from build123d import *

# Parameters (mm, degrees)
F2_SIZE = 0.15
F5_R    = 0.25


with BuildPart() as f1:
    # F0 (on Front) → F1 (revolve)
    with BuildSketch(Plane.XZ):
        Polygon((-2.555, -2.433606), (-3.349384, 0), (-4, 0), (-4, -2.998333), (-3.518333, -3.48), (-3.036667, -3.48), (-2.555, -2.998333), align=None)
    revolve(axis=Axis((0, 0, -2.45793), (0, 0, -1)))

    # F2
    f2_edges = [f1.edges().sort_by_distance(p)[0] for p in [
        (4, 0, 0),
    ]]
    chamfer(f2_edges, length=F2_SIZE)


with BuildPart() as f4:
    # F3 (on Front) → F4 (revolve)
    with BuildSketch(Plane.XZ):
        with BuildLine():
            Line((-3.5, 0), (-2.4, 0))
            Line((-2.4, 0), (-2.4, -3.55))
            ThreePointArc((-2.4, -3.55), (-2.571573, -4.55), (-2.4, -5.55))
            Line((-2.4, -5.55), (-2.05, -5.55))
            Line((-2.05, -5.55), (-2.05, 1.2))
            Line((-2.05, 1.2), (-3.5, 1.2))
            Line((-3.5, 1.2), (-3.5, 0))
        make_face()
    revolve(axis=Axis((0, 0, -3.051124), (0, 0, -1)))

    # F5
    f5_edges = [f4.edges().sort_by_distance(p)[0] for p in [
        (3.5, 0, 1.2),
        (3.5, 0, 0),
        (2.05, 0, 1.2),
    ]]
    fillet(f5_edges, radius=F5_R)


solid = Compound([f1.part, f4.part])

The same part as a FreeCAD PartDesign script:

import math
import FreeCAD as App
import Part
import Sketcher
from FreeCAD import Vector


def edges_at(feature, points):
    """Names of the edges that pass closest to the given points."""
    edges = feature.Shape.Edges
    near = lambda p: min(range(len(edges)), key=lambda i: edges[i].distToShape(Part.Vertex(*p))[0])
    return sorted({f"Edge{near(p) + 1}" for p in points})


def add_polygon(sketch, points):
    """Adds a closed chain of lines whose ends are joined by coincident constraints."""
    first, n = sketch.GeometryCount, len(points)
    for a, b in zip(points, points[1:] + points[:1]):
        sketch.addGeometry(Part.LineSegment(App.Vector(*a, 0), App.Vector(*b, 0)), False)
    for i in range(n):
        sketch.addConstraint(Sketcher.Constraint("Coincident", first + i, 2, first + (i + 1) % n, 1))

doc = App.newDocument("Part")
body = doc.addObject("PartDesign::Body", "Body")

sketch1 = body.newObject("Sketcher::SketchObject", "Sketch")
sketch1.AttachmentSupport = (doc.getObject("XZ_Plane"), [""])
sketch1.MapMode = "FlatFace"
add_polygon(sketch1, [(-2.555, -2.433606), (-3.349384, 0), (-4, 0), (-4, -2.998333), (-3.518333, -3.48), (-3.036667, -3.48), (-2.555, -2.998333)])
sketch1.addConstraint(Sketcher.Constraint("Horizontal", 1))
sketch1.addConstraint(Sketcher.Constraint("Vertical", 2))
sketch1.addConstraint(Sketcher.Constraint("Horizontal", 4))
sketch1.addConstraint(Sketcher.Constraint("Vertical", 6))
sketch1.addConstraint(Sketcher.Constraint("PointOnObject", 0, 2, -1))
sketch1.addConstraint(Sketcher.Constraint("Perpendicular", 3, 5))
sketch1.addConstraint(Sketcher.Constraint("Horizontal", 2, 2, 5, 2))
sketch1.addConstraint(Sketcher.Constraint("Equal", 3, 5))
sketch1.addConstraint(Sketcher.Constraint("DistanceX", 1, 2, -1, 1, 4.0))
sketch1.addConstraint(Sketcher.Constraint("DistanceY", 3, 2, -1, 1, 3.48))
sketch1.addConstraint(Sketcher.Constraint("DistanceX", 5, 2, -1, 1, 2.555))
sketch1.addConstraint(Sketcher.Constraint("Distance", 3, 0.68118))
sketch1.addConstraint(Sketcher.Constraint("DistanceX", 1, 2, 1, 1, 0.650616))
sketch1.addConstraint(Sketcher.Constraint("DistanceY", 6, 1, 6, 2, 0.564727))
revolution = body.newObject("PartDesign::Revolution", "Revolution")
revolution.Profile = sketch1
revolution.ReferenceAxis = (sketch1, ["V_Axis"])
revolution.Angle = 360
doc.recompute()

chamfer = body.newObject("PartDesign::Chamfer", "Chamfer")
chamfer.Base = (revolution, edges_at(revolution, [(4, 0, 0)]))
chamfer.Size = 0.15
body2 = doc.addObject("PartDesign::Body", "Body001")

sketch2 = body2.newObject("Sketcher::SketchObject", "Sketch001")
sketch2.AttachmentSupport = (doc.getObject("XZ_Plane001"), [""])
sketch2.MapMode = "FlatFace"
sketch2.addGeometry(Part.LineSegment(Vector(-3.5, 0, 0), Vector(-2.4, 0, 0)), False)
sketch2.addGeometry(Part.LineSegment(Vector(-2.4, 0, 0), Vector(-2.4, -3.55, 0)), False)
sketch2.addGeometry(Part.ArcOfCircle(Part.Circle(Vector(0.428425, -4.55, 0), Vector(0, 0, 1), 2.999998), math.radians(160.528765), math.radians(199.471235)), False)
sketch2.addGeometry(Part.LineSegment(Vector(-2.4, -5.55, 0), Vector(-2.05, -5.55, 0)), False)
sketch2.addGeometry(Part.LineSegment(Vector(-2.05, -5.55, 0), Vector(-2.05, 1.2, 0)), False)
sketch2.addGeometry(Part.LineSegment(Vector(-2.05, 1.2, 0), Vector(-3.5, 1.2, 0)), False)
sketch2.addGeometry(Part.LineSegment(Vector(-3.5, 1.2, 0), Vector(-3.5, 0, 0)), False)
sketch2.addConstraint(Sketcher.Constraint("Coincident", 0, 2, 1, 1))
sketch2.addConstraint(Sketcher.Constraint("Coincident", 1, 2, 2, 1))
sketch2.addConstraint(Sketcher.Constraint("Coincident", 2, 2, 3, 1))
sketch2.addConstraint(Sketcher.Constraint("Coincident", 3, 2, 4, 1))
sketch2.addConstraint(Sketcher.Constraint("Coincident", 4, 2, 5, 1))
sketch2.addConstraint(Sketcher.Constraint("Coincident", 5, 2, 6, 1))
sketch2.addConstraint(Sketcher.Constraint("Coincident", 6, 2, 0, 1))
sketch2.addConstraint(Sketcher.Constraint("Horizontal", 0))
sketch2.addConstraint(Sketcher.Constraint("Vertical", 1))
sketch2.addConstraint(Sketcher.Constraint("Horizontal", 3))
sketch2.addConstraint(Sketcher.Constraint("Vertical", 4))
sketch2.addConstraint(Sketcher.Constraint("Horizontal", 5))
sketch2.addConstraint(Sketcher.Constraint("Vertical", 6))
sketch2.addConstraint(Sketcher.Constraint("PointOnObject", 0, 2, -1))
sketch2.addConstraint(Sketcher.Constraint("Vertical", 1, 2, 2, 2))
sketch2.addConstraint(Sketcher.Constraint("DistanceX", 0, 1, 0, 2, 1.1))
sketch2.addConstraint(Sketcher.Constraint("DistanceY", 6, 2, 6, 1, 1.2))
sketch2.addConstraint(Sketcher.Constraint("DistanceY", 2, 3, 1, 2, 1.0))
sketch2.addConstraint(Sketcher.Constraint("DistanceX", 3, 1, 3, 2, 0.35))
sketch2.addConstraint(Sketcher.Constraint("DistanceY", 1, 2, 1, 1, 3.55))
sketch2.addConstraint(Sketcher.Constraint("DistanceX", 0, 2, -1, 1, 2.4))
sketch2.addConstraint(Sketcher.Constraint("Radius", 2, 2.999998))
revolution2 = body2.newObject("PartDesign::Revolution", "Revolution001")
revolution2.Profile = sketch2
revolution2.ReferenceAxis = (sketch2, ["V_Axis"])
revolution2.Angle = 360
doc.recompute()

fillet = body2.newObject("PartDesign::Fillet", "Fillet")
fillet.Base = (revolution2, edges_at(revolution2, [(3.5, 0, 1.2), (3.5, 0, 0), (2.05, 0, 1.2)]))
fillet.Radius = 0.25

doc.recompute()
